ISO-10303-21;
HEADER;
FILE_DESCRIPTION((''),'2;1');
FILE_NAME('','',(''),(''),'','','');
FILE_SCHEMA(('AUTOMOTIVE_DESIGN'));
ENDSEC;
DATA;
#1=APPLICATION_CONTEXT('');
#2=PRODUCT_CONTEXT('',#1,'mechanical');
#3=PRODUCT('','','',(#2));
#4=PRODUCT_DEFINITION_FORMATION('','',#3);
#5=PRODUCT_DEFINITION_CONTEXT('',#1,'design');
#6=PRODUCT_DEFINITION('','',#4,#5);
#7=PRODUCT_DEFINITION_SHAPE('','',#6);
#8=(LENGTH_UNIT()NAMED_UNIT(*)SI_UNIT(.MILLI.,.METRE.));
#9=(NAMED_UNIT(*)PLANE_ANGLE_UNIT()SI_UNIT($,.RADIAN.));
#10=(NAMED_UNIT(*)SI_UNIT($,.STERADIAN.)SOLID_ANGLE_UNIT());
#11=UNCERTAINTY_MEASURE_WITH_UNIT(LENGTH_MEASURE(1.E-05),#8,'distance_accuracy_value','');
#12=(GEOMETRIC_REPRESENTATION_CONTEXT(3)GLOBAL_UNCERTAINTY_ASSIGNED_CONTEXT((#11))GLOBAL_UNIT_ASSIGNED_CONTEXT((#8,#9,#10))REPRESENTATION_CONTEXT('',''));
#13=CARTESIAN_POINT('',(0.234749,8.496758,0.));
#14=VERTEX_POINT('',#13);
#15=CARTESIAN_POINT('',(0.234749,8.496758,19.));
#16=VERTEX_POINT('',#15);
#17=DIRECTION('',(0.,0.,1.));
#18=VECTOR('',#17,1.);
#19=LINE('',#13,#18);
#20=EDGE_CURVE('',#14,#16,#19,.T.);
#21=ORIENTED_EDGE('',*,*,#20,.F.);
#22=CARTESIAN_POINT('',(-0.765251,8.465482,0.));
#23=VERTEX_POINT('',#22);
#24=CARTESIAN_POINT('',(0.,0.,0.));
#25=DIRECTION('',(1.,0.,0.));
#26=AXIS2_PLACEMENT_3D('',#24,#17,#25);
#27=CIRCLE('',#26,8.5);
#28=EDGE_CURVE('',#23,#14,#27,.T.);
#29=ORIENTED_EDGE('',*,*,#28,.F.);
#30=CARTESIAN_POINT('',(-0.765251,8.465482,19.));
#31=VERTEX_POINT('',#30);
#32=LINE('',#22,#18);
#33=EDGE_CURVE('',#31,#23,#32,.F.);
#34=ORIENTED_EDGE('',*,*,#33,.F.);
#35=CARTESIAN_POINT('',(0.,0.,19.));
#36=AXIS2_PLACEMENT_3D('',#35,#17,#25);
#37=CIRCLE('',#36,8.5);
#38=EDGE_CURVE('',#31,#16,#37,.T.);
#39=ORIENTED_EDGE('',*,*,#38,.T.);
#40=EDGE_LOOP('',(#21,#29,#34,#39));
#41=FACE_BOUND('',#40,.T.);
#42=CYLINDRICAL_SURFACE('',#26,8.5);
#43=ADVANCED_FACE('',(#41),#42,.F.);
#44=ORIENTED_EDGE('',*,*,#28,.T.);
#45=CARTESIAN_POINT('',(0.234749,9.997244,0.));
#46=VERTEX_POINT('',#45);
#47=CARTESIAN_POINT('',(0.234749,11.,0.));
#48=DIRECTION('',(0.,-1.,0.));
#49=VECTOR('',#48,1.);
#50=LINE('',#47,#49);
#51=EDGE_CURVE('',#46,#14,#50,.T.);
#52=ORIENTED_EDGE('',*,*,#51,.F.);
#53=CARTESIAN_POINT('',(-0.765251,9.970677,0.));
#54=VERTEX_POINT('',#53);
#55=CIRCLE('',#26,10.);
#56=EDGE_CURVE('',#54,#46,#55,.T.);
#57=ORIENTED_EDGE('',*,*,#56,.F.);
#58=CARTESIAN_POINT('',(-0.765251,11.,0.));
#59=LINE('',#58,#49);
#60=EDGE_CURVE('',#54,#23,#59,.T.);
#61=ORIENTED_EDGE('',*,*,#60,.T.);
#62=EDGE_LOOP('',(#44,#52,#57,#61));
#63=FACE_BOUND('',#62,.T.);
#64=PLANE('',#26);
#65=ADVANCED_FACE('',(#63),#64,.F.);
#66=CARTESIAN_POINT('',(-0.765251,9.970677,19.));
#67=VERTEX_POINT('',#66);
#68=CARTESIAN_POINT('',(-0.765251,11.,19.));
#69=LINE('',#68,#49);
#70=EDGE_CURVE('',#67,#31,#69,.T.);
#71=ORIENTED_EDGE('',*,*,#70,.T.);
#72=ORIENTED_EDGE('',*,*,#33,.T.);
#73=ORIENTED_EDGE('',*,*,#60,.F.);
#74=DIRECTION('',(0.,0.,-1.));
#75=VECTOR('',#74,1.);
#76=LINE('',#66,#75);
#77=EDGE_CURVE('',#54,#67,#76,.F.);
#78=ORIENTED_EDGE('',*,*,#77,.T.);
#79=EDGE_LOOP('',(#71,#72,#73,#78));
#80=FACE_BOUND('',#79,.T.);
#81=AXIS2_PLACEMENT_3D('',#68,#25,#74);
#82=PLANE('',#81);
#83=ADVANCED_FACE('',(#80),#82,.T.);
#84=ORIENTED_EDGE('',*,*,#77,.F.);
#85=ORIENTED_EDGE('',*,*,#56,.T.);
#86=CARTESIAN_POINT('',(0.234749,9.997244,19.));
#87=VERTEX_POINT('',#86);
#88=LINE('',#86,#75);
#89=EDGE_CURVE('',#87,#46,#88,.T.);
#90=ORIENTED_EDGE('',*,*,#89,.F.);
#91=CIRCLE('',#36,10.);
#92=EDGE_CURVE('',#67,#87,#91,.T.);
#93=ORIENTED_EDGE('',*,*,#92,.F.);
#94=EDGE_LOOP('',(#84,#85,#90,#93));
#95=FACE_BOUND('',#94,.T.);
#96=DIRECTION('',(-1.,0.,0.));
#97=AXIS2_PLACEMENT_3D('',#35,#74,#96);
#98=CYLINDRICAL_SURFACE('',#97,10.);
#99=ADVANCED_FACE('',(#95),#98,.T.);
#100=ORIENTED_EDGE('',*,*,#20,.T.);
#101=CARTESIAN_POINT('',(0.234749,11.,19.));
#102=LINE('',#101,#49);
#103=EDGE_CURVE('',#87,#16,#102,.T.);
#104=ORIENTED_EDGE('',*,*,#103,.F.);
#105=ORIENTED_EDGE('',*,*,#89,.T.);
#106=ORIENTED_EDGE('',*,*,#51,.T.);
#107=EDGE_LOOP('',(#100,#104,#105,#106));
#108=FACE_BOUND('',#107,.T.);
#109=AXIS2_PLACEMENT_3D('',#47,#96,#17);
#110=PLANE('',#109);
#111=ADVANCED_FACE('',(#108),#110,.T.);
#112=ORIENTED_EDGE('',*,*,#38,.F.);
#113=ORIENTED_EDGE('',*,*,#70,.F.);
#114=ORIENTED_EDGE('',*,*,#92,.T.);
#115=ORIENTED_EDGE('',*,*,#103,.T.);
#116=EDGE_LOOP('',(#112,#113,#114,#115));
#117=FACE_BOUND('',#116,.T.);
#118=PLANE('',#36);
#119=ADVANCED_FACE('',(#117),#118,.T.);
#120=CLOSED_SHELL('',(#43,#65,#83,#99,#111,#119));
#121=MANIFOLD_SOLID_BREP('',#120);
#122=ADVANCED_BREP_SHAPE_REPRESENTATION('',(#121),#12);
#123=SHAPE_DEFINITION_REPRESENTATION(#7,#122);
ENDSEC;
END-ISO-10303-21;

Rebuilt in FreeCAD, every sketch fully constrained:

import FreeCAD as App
import Part
import Sketcher
Q = App.Units.Quantity


def add_polygon(sketch, points):
    """Adds a closed chain of lines whose ends are joined by coincident constraints."""
    first, n = sketch.GeometryCount, len(points)
    for a, b in zip(points, points[1:] + points[:1]):
        sketch.addGeometry(Part.LineSegment(App.Vector(*a, 0), App.Vector(*b, 0)), False)
    for i in range(n):
        sketch.addConstraint(Sketcher.Constraint("Coincident", first + i, 2, first + (i + 1) % n, 1))

doc = App.newDocument("Part")
body = doc.addObject("PartDesign::Body", "Body")

# Sketch on XY plane
sketch1 = doc.addObject("Sketcher::SketchObject", "Sketch")
body.addObject(sketch1)
sketch1.AttachmentSupport = (doc.XY_Plane, [""])
sketch1.MapMode = "FlatFace"
sketch1.addGeometry(Part.Circle(App.Vector(0, 0, 0), App.Vector(0, 0, 1), 10), False)
sketch1.addConstraint([
    Sketcher.Constraint("Coincident", 0, 3, -1, 1),
    Sketcher.Constraint("Diameter", 0, Q("20 mm")),
])
pad1 = doc.addObject("PartDesign::Pad", "Pad")
body.addObject(pad1)
pad1.Profile = sketch1
pad1.Length = 19

# Sketch on XY plane
sketch2 = doc.addObject("Sketcher::SketchObject", "Sketch001")
body.addObject(sketch2)
sketch2.AttachmentSupport = (doc.XY_Plane, [""])
sketch2.MapMode = "FlatFace"
sketch2.AttachmentOffset = App.Placement(App.Vector(0, 0, 19), App.Rotation())
sketch2.addGeometry(Part.Circle(App.Vector(0, 0, 0), App.Vector(0, 0, 1), 8.5), False)
sketch2.addConstraint([
    Sketcher.Constraint("Coincident", 0, 3, -1, 1),
    Sketcher.Constraint("Diameter", 0, Q("17 mm")),
])
pocket1 = doc.addObject("PartDesign::Pocket", "Pocket")
body.addObject(pocket1)
pocket1.Profile = sketch2
pocket1.Length = 19

# Sketch on XZ plane
sketch3 = doc.addObject("Sketcher::SketchObject", "Sketch002")
body.addObject(sketch3)
sketch3.AttachmentSupport = (doc.XZ_Plane, [""])
sketch3.MapMode = "FlatFace"
sketch3.AttachmentOffset = App.Placement(App.Vector(0, 0, -8), App.Rotation())
add_polygon(sketch3, [(-0.765251, 0), (-0.765251, 19), (0.234749, 19), (0.234749, 0)])  # lines 0-3
sketch3.addConstraint([
    Sketcher.Constraint("Vertical", 0),
    Sketcher.Constraint("Horizontal", 1),
    Sketcher.Constraint("Vertical", 2),
    Sketcher.Constraint("Horizontal", 3),
    Sketcher.Constraint("PointOnObject", 2, 2, -1),
    Sketcher.Constraint("DistanceX", 1, 1, 1, 2, Q("1 mm")),
    Sketcher.Constraint("DistanceY", 0, 1, 0, 2, Q("19 mm")),
    Sketcher.Constraint("DistanceX", 0, 2, -1, 1, Q("0.765251 mm")),
])
pocket2 = doc.addObject("PartDesign::Pocket", "Pocket001")
body.addObject(pocket2)
pocket2.Profile = sketch3
pocket2.Length = 3

doc.recompute()
